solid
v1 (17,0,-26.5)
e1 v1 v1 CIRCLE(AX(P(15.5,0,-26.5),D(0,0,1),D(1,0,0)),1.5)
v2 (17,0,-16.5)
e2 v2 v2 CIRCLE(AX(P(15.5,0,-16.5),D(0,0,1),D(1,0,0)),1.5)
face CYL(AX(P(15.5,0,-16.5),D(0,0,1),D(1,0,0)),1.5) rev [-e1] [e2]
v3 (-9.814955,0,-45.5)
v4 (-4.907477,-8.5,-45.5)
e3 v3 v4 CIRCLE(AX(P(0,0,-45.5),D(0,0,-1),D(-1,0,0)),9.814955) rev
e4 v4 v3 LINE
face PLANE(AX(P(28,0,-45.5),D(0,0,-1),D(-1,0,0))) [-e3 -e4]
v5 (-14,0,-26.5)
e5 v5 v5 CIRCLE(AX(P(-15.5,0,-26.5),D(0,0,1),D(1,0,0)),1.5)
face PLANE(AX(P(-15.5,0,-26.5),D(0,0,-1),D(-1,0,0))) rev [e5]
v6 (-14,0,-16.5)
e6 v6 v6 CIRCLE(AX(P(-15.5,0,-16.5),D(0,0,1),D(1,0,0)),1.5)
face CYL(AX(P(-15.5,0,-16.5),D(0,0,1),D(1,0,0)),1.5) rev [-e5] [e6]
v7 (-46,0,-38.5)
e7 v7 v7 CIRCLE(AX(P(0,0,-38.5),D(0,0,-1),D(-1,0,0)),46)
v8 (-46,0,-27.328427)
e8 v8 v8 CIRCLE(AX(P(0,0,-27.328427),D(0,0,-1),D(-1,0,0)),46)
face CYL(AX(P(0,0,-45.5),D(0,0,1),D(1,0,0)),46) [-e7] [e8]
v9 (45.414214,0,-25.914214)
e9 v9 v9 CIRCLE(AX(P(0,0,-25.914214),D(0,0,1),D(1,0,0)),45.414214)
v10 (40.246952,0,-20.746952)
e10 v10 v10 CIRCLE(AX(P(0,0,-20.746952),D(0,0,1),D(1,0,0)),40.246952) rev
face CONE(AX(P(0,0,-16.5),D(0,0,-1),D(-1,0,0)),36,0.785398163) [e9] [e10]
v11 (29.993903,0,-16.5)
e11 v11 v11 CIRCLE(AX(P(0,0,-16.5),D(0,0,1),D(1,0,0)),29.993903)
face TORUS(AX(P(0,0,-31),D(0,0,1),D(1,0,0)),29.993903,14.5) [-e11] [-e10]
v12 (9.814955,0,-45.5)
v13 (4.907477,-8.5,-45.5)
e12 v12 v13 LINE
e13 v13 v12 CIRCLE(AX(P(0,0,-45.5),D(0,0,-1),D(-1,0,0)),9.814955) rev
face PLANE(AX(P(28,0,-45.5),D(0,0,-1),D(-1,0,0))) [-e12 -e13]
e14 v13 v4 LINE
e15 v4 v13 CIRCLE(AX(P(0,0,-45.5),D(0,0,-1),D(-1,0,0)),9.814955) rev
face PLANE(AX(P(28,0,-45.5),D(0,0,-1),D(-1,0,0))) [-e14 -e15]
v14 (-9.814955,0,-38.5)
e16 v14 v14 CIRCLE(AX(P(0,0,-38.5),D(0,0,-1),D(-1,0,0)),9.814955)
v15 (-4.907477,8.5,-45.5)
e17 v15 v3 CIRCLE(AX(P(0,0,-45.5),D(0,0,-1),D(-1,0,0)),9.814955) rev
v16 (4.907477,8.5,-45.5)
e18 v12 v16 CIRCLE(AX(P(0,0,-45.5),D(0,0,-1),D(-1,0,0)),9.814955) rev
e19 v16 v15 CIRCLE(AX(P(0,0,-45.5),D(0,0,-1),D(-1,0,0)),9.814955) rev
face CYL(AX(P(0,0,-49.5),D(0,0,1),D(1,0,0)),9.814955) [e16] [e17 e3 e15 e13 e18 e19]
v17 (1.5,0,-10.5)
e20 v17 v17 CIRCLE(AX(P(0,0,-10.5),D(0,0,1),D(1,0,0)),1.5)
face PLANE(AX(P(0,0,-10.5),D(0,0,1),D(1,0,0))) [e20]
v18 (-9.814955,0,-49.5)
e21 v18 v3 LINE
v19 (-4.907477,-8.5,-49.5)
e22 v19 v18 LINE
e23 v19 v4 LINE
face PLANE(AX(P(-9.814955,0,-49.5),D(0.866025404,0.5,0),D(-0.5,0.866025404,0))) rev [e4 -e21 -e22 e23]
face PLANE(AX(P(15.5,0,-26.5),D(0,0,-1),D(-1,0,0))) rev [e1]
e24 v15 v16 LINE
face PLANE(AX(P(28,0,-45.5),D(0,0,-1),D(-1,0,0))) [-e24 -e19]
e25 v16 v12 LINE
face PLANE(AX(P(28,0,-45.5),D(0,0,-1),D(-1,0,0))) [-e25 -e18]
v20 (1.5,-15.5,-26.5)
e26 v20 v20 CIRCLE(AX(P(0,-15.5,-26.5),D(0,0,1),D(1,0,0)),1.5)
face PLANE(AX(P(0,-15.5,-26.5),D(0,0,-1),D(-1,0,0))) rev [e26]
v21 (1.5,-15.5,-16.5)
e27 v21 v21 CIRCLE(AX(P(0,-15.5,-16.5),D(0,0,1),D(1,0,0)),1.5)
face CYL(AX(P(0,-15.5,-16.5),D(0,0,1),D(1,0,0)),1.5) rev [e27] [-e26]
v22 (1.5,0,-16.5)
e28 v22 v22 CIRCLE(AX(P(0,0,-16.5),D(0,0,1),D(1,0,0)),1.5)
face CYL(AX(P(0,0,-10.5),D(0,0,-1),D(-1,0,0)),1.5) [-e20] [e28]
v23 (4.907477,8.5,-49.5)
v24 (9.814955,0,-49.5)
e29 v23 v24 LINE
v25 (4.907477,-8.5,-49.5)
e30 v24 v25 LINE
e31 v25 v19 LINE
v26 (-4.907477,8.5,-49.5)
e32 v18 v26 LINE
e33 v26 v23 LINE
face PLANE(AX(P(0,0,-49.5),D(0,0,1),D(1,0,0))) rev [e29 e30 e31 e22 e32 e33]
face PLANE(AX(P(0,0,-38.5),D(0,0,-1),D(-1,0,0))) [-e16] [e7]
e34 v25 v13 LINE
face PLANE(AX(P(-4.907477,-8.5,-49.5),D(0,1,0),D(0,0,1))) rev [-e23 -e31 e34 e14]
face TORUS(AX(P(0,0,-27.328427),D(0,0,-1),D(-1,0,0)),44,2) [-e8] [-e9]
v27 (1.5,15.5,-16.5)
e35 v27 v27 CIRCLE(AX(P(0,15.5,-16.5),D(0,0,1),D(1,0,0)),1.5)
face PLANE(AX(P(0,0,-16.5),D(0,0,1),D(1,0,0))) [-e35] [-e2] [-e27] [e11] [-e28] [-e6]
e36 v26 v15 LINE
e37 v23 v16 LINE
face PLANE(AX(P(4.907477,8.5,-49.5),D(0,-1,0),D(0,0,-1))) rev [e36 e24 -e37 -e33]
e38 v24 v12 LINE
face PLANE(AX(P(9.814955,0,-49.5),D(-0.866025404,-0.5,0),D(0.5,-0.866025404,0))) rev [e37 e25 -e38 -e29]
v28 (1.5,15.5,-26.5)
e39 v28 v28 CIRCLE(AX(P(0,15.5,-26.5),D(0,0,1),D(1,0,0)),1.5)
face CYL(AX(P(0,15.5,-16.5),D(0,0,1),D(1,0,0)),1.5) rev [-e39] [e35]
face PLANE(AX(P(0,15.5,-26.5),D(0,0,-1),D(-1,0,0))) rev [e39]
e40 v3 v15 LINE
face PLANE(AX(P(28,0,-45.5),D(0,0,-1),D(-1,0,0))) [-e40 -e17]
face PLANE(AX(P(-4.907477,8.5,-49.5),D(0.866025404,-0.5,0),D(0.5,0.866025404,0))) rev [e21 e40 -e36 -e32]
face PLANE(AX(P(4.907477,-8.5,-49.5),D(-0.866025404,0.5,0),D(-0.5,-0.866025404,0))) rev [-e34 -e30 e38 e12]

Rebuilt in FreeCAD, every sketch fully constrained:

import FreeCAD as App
import Part
import Sketcher

V = App.Vector
Q = App.Units.Quantity


def edges_at(feature, points):
    """Names of the edges that pass closest to the given points."""
    edges = feature.Shape.Edges
    near = lambda p: min(range(len(edges)), key=lambda i: edges[i].distToShape(Part.Vertex(*p))[0])
    return sorted({f"Edge{near(p) + 1}" for p in points})

doc = App.newDocument("Part")
body = doc.addObject("PartDesign::Body", "Body")

sketch1 = body.newObject("Sketcher::SketchObject", "Sketch")
sketch1.AttachmentSupport = (doc.getObject("XZ_Plane"), [""])
sketch1.MapMode = "FlatFace"
sketch1.addGeometry(Part.LineSegment(V(28, -45.5, 0), V(0, -45.5, 0)), False)
sketch1.addGeometry(Part.LineSegment(V(0, -45.5, 0), V(0, -16.5, 0)), False)
sketch1.addGeometry(Part.LineSegment(V(0, -16.5, 0), V(36, -16.5, 0)), False)
sketch1.addGeometry(Part.LineSegment(V(36, -16.5, 0), V(46, -26.5, 0)), False)
sketch1.addGeometry(Part.LineSegment(V(46, -26.5, 0), V(46, -40.5, 0)), False)
sketch1.addGeometry(Part.LineSegment(V(46, -40.5, 0), V(28, -45.5, 0)), False)
sketch1.addConstraint(Sketcher.Constraint("Coincident", 0, 2, 1, 1))
sketch1.addConstraint(Sketcher.Constraint("Coincident", 1, 2, 2, 1))
sketch1.addConstraint(Sketcher.Constraint("Coincident", 2, 2, 3, 1))
sketch1.addConstraint(Sketcher.Constraint("Coincident", 3, 2, 4, 1))
sketch1.addConstraint(Sketcher.Constraint("Coincident", 4, 2, 5, 1))
sketch1.addConstraint(Sketcher.Constraint("Coincident", 5, 2, 0, 1))
sketch1.addConstraint(Sketcher.Constraint("Horizontal", 0))
sketch1.addConstraint(Sketcher.Constraint("Vertical", 1))
sketch1.addConstraint(Sketcher.Constraint("Horizontal", 2))
sketch1.addConstraint(Sketcher.Constraint("Vertical", 4))
sketch1.addConstraint(Sketcher.Constraint("PointOnObject", 0, 2, -2))
sketch1.addConstraint(Sketcher.Constraint("DistanceX", 0, 2, 0, 1, Q("28 mm")))
sketch1.addConstraint(Sketcher.Constraint("DistanceX", 2, 1, 2, 2, Q("36 mm")))
sketch1.addConstraint(Sketcher.Constraint("DistanceY", 1, 1, 1, 2, Q("29 mm")))
sketch1.addConstraint(Sketcher.Constraint("DistanceY", 4, 2, 4, 1, Q("14 mm")))
sketch1.addConstraint(Sketcher.Constraint("Angle", 3, Q("-45 deg")))
sketch1.addConstraint(Sketcher.Constraint("DistanceX", -1, 1, 3, 2, Q("46 mm")))
sketch1.addConstraint(Sketcher.Constraint("DistanceY", 0, 2, -1, 1, Q("45.5 mm")))
revolution = body.newObject("PartDesign::Revolution", "Revolution")
revolution.Profile = sketch1
revolution.ReferenceAxis = (sketch1, ["V_Axis"])
revolution.Angle = 360

sketch2 = body.newObject("Sketcher::SketchObject", "Sketch001")
sketch2.AttachmentSupport = (doc.getObject("XY_Plane"), [""])
sketch2.MapMode = "FlatFace"
sketch2.AttachmentOffset = App.Placement(V(0, 0, -45.5), App.Rotation())
sketch2.addGeometry(Part.LineSegment(V(4.907477, 8.5, 0), V(9.814955, 0, 0)), False)
sketch2.addGeometry(Part.LineSegment(V(9.814955, 0, 0), V(4.907477, -8.5, 0)), False)
sketch2.addGeometry(Part.LineSegment(V(4.907477, -8.5, 0), V(-4.907477, -8.5, 0)), False)
sketch2.addGeometry(Part.LineSegment(V(-4.907477, -8.5, 0), V(-9.814955, 0, 0)), False)
sketch2.addGeometry(Part.LineSegment(V(-9.814955, 0, 0), V(-4.907477, 8.5, 0)), False)
sketch2.addGeometry(Part.LineSegment(V(-4.907477, 8.5, 0), V(4.907477, 8.5, 0)), False)
sketch2.addConstraint(Sketcher.Constraint("Coincident", 0, 2, 1, 1))
sketch2.addConstraint(Sketcher.Constraint("Coincident", 1, 2, 2, 1))
sketch2.addConstraint(Sketcher.Constraint("Coincident", 2, 2, 3, 1))
sketch2.addConstraint(Sketcher.Constraint("Coincident", 3, 2, 4, 1))
sketch2.addConstraint(Sketcher.Constraint("Coincident", 4, 2, 5, 1))
sketch2.addConstraint(Sketcher.Constraint("Coincident", 5, 2, 0, 1))
sketch2.addConstraint(Sketcher.Constraint("Horizontal", 2))
sketch2.addConstraint(Sketcher.Constraint("Horizontal", 5))
sketch2.addConstraint(Sketcher.Constraint("Symmetric", 0, 2, 3, 2, -1, 1))
sketch2.addConstraint(Sketcher.Constraint("Symmetric", 1, 2, 4, 2, -1, 1))
sketch2.addConstraint(Sketcher.Constraint("PointOnObject", 0, 2, -1))
sketch2.addConstraint(Sketcher.Constraint("Parallel", 0, 3))
sketch2.addConstraint(Sketcher.Constraint("Vertical", 2, 2, 4, 2))
sketch2.addConstraint(Sketcher.Constraint("Angle", 0, Q("-60 deg")))
sketch2.addConstraint(Sketcher.Constraint("DistanceY", 2, 2, 4, 2, Q("17 mm")))
sketch2.addConstraint(Sketcher.Constraint("DistanceX", 2, 2, 2, 1, Q("9.814955 mm")))
pad1 = body.newObject("PartDesign::Pad", "Pad")
pad1.Profile = sketch2
pad1.Length = 4
pad1.Reversed = True

sketch3 = body.newObject("Sketcher::SketchObject", "Sketch002")
sketch3.AttachmentSupport = (doc.getObject("XY_Plane"), [""])
sketch3.MapMode = "FlatFace"
sketch3.AttachmentOffset = App.Placement(V(0, 0, -16.5), App.Rotation())
sketch3.addGeometry(Part.Circle(V(0, 0, 0), V(0, 0, 1), 1.5), False)
sketch3.addConstraint(Sketcher.Constraint("Coincident", 0, 3, -1, 1))
sketch3.addConstraint(Sketcher.Constraint("Diameter", 0, Q("3 mm")))
pad2 = body.newObject("PartDesign::Pad", "Pad001")
pad2.Profile = sketch3
pad2.Length = 6

sketch4 = body.newObject("Sketcher::SketchObject", "Sketch003")
sketch4.AttachmentSupport = (doc.getObject("XY_Plane"), [""])
sketch4.MapMode = "FlatFace"
sketch4.AttachmentOffset = App.Placement(V(0, 0, -16.5), App.Rotation())
sketch4.addGeometry(Part.Circle(V(-15.5, 0, 0), V(0, 0, 1), 1.5), False)
sketch4.addGeometry(Part.Circle(V(0, 15.5, 0), V(0, 0, 1), 1.5), False)
sketch4.addGeometry(Part.Circle(V(0, -15.5, 0), V(0, 0, 1), 1.5), False)
sketch4.addGeometry(Part.Circle(V(15.5, 0, 0), V(0, 0, 1), 1.5), False)
sketch4.addConstraint(Sketcher.Constraint("Equal", 0, 1))
sketch4.addConstraint(Sketcher.Constraint("Equal", 1, 2))
sketch4.addConstraint(Sketcher.Constraint("Equal", 2, 3))
sketch4.addConstraint(Sketcher.Constraint("Symmetric", 1, 3, 2, 3, -1, 1))
sketch4.addConstraint(Sketcher.Constraint("Symmetric", 0, 3, 3, 3, -1, 1))
sketch4.addConstraint(Sketcher.Constraint("PointOnObject", 0, 3, -1))
sketch4.addConstraint(Sketcher.Constraint("PointOnObject", 1, 3, -2))
sketch4.addConstraint(Sketcher.Constraint("Diameter", 0, Q("3 mm")))
sketch4.addConstraint(Sketcher.Constraint("DistanceY", 2, 3, 1, 3, Q("31 mm")))
sketch4.addConstraint(Sketcher.Constraint("DistanceX", 0, 3, 3, 3, Q("31 mm")))
doc.recompute()
hole = body.newObject("PartDesign::Hole", "Hole")
hole.Profile = sketch4
hole.ThreadType = "None"
hole.Diameter = 3
hole.DepthType = "Dimension"
hole.Depth = 10
hole.DrillPoint = "Flat"
doc.recompute()

fillet = body.newObject("PartDesign::Fillet", "Fillet")
fillet.Base = (hole, edges_at(hole, [(-36, 0, -16.5)]))
fillet.Radius = 14.5
doc.recompute()

fillet2 = body.newObject("PartDesign::Fillet", "Fillet001")
fillet2.Base = (fillet, edges_at(fillet, [(-46, 0, -26.5)]))
fillet2.Radius = 2

sketch5 = body.newObject("Sketcher::SketchObject", "Sketch004")
sketch5.AttachmentSupport = (doc.getObject("XY_Plane"), [""])
sketch5.MapMode = "FlatFace"
sketch5.AttachmentOffset = App.Placement(V(0, 0, -45.5), App.Rotation())
sketch5.addGeometry(Part.Circle(V(0, 0, 0), V(0, 0, 1), 46), False)
sketch5.addGeometry(Part.Circle(V(0, 0, 0), V(0, 0, 1), 9.814955), False)
sketch5.addConstraint(Sketcher.Constraint("Coincident", 0, 3, -1, 1))
sketch5.addConstraint(Sketcher.Constraint("Coincident", 1, 3, -1, 1))
sketch5.addConstraint(Sketcher.Constraint("Diameter", 0, Q("92 mm")))
sketch5.addConstraint(Sketcher.Constraint("Diameter", 1, Q("19.629909 mm")))
pocket1 = body.newObject("PartDesign::Pocket", "Pocket")
pocket1.Profile = sketch5
pocket1.Type = "TwoLengths"
pocket1.Length = 74.871511
pocket1.Length2 = 7

doc.recompute()
